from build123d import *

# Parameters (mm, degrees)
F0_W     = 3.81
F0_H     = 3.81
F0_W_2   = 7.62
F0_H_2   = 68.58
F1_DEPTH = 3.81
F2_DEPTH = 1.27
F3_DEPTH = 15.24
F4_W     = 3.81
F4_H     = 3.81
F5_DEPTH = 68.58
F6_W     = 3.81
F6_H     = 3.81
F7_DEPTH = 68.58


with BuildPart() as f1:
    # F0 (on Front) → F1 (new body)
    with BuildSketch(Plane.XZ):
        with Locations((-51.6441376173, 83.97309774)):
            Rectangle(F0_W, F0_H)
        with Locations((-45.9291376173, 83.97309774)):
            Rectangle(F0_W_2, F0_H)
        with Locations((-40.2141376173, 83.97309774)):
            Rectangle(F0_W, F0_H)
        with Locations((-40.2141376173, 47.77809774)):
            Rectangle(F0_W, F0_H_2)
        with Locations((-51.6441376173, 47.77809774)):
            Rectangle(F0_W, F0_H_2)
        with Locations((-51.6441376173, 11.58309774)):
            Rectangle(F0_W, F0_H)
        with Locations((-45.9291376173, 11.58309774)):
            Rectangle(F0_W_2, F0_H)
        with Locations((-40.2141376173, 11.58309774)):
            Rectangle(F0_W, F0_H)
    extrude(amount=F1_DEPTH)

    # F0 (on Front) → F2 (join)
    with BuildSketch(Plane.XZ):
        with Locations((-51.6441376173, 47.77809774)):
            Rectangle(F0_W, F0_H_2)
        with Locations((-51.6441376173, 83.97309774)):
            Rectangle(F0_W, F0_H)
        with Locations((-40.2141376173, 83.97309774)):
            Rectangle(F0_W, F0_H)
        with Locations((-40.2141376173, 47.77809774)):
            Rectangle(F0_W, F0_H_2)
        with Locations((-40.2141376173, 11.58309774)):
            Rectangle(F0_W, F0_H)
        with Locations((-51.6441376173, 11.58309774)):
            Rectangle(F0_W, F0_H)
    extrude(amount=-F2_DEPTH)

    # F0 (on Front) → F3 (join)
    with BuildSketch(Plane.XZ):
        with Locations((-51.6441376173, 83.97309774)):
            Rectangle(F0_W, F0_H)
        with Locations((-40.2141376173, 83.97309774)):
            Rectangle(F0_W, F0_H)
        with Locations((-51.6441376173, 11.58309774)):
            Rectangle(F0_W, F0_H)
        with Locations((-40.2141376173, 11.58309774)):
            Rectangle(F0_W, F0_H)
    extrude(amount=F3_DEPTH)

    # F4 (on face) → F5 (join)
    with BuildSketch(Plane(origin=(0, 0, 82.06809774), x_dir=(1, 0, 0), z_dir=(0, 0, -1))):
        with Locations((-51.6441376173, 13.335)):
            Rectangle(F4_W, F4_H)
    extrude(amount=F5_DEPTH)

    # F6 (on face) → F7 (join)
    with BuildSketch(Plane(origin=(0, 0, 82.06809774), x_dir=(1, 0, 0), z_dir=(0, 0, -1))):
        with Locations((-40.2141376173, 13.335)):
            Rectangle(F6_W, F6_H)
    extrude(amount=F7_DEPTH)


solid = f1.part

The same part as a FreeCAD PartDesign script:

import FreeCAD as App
import Part
import Sketcher
Q = App.Units.Quantity

doc = App.newDocument("Part")
body = doc.addObject("PartDesign::Body", "Body")

sketch1 = body.newObject("Sketcher::SketchObject", "Sketch")
sketch1.AttachmentSupport = (doc.getObject("XZ_Plane"), [""])
sketch1.MapMode = "FlatFace"
sketch1.addGeometry(Part.LineSegment(App.Vector(-54, 10, 0), App.Vector(-38, 10, 0)), False)
sketch1.addGeometry(Part.LineSegment(App.Vector(-38, 10, 0), App.Vector(-38, 86, 0)), False)
sketch1.addGeometry(Part.LineSegment(App.Vector(-38, 86, 0), App.Vector(-54, 86, 0)), False)
sketch1.addGeometry(Part.LineSegment(App.Vector(-54, 86, 0), App.Vector(-54, 10, 0)), False)
sketch1.addGeometry(Part.LineSegment(App.Vector(-42, 13, 0), App.Vector(-50, 13, 0)), False)
sketch1.addGeometry(Part.LineSegment(App.Vector(-50, 13, 0), App.Vector(-50, 82, 0)), False)
sketch1.addGeometry(Part.LineSegment(App.Vector(-50, 82, 0), App.Vector(-42, 82, 0)), False)
sketch1.addGeometry(Part.LineSegment(App.Vector(-42, 82, 0), App.Vector(-42, 13, 0)), False)
sketch1.addConstraint(Sketcher.Constraint("Coincident", 0, 2, 1, 1))
sketch1.addConstraint(Sketcher.Constraint("Coincident", 1, 2, 2, 1))
sketch1.addConstraint(Sketcher.Constraint("Coincident", 2, 2, 3, 1))
sketch1.addConstraint(Sketcher.Constraint("Coincident", 3, 2, 0, 1))
sketch1.addConstraint(Sketcher.Constraint("Coincident", 4, 2, 5, 1))
sketch1.addConstraint(Sketcher.Constraint("Coincident", 5, 2, 6, 1))
sketch1.addConstraint(Sketcher.Constraint("Coincident", 6, 2, 7, 1))
sketch1.addConstraint(Sketcher.Constraint("Coincident", 7, 2, 4, 1))
sketch1.addConstraint(Sketcher.Constraint("Horizontal", 0))
sketch1.addConstraint(Sketcher.Constraint("Vertical", 1))
sketch1.addConstraint(Sketcher.Constraint("Horizontal", 2))
sketch1.addConstraint(Sketcher.Constraint("Vertical", 3))
sketch1.addConstraint(Sketcher.Constraint("Horizontal", 4))
sketch1.addConstraint(Sketcher.Constraint("Vertical", 5))
sketch1.addConstraint(Sketcher.Constraint("Horizontal", 6))
sketch1.addConstraint(Sketcher.Constraint("Vertical", 7))
sketch1.addConstraint(Sketcher.Constraint("DistanceY", 1, 1, 1, 2, Q("3 in")))
sketch1.addConstraint(Sketcher.Constraint("DistanceX", 0, 1, 0, 2, Q("0.6 in")))
sketch1.addConstraint(Sketcher.Constraint("DistanceX", 4, 2, 4, 1, Q("0.3 in")))
sketch1.addConstraint(Sketcher.Constraint("DistanceY", 5, 1, 5, 2, Q("2.7 in")))
sketch1.addConstraint(Sketcher.Constraint("DistanceX", 3, 2, 4, 2, Q("0.15 in")))
sketch1.addConstraint(Sketcher.Constraint("DistanceY", 3, 2, 4, 2, Q("0.15 in")))
sketch1.addConstraint(Sketcher.Constraint("DistanceX", 0, 2, -1, 1, Q("38.309138 mm")))
sketch1.addConstraint(Sketcher.Constraint("DistanceY", -1, 1, 0, 2, Q("9.678098 mm")))
pad1 = body.newObject("PartDesign::Pad", "Pad")
pad1.Profile = sketch1
pad1.Length = Q("0.15 in")

sketch2 = body.newObject("Sketcher::SketchObject", "Sketch001")
sketch2.AttachmentSupport = (doc.getObject("XZ_Plane"), [""])
sketch2.MapMode = "FlatFace"
sketch2.addGeometry(Part.LineSegment(App.Vector(-49.7, 85.9, 0), App.Vector(-53.5, 85.9, 0)), False)
sketch2.addGeometry(Part.LineSegment(App.Vector(-53.5, 85.9, 0), App.Vector(-53.5, 9.7, 0)), False)
sketch2.addGeometry(Part.LineSegment(App.Vector(-53.5, 9.7, 0), App.Vector(-49.7, 9.7, 0)), False)
sketch2.addGeometry(Part.LineSegment(App.Vector(-49.7, 9.7, 0), App.Vector(-49.7, 85.9, 0)), False)
sketch2.addGeometry(Part.LineSegment(App.Vector(-42.1, 85.9, 0), App.Vector(-42.1, 9.7, 0)), False)
sketch2.addGeometry(Part.LineSegment(App.Vector(-42.1, 9.7, 0), App.Vector(-38.3, 9.7, 0)), False)
sketch2.addGeometry(Part.LineSegment(App.Vector(-38.3, 9.7, 0), App.Vector(-38.3, 85.9, 0)), False)
sketch2.addGeometry(Part.LineSegment(App.Vector(-38.3, 85.9, 0), App.Vector(-42.1, 85.9, 0)), False)
sketch2.addConstraint(Sketcher.Constraint("Coincident", 0, 2, 1, 1))
sketch2.addConstraint(Sketcher.Constraint("Coincident", 1, 2, 2, 1))
sketch2.addConstraint(Sketcher.Constraint("Coincident", 2, 2, 3, 1))
sketch2.addConstraint(Sketcher.Constraint("Coincident", 3, 2, 0, 1))
sketch2.addConstraint(Sketcher.Constraint("Coincident", 4, 2, 5, 1))
sketch2.addConstraint(Sketcher.Constraint("Coincident", 5, 2, 6, 1))
sketch2.addConstraint(Sketcher.Constraint("Coincident", 6, 2, 7, 1))
sketch2.addConstraint(Sketcher.Constraint("Coincident", 7, 2, 4, 1))
sketch2.addConstraint(Sketcher.Constraint("Horizontal", 0))
sketch2.addConstraint(Sketcher.Constraint("Vertical", 1))
sketch2.addConstraint(Sketcher.Constraint("Horizontal", 2))
sketch2.addConstraint(Sketcher.Constraint("Vertical", 3))
sketch2.addConstraint(Sketcher.Constraint("Vertical", 4))
sketch2.addConstraint(Sketcher.Constraint("Horizontal", 5))
sketch2.addConstraint(Sketcher.Constraint("Vertical", 6))
sketch2.addConstraint(Sketcher.Constraint("Horizontal", 7))
sketch2.addConstraint(Sketcher.Constraint("Horizontal", 2, 2, 4, 2))
sketch2.addConstraint(Sketcher.Constraint("Horizontal", 3, 2, 6, 2))
sketch2.addConstraint(Sketcher.Constraint("Equal", 2, 5))
sketch2.addConstraint(Sketcher.Constraint("DistanceY", 1, 2, 1, 1, Q("3 in")))
sketch2.addConstraint(Sketcher.Constraint("DistanceX", 0, 2, 0, 1, Q("0.15 in")))
sketch2.addConstraint(Sketcher.Constraint("DistanceX", 2, 2, 4, 2, Q("0.3 in")))
sketch2.addConstraint(Sketcher.Constraint("DistanceX", 0, 2, -1, 1, Q("53.549138 mm")))
sketch2.addConstraint(Sketcher.Constraint("DistanceY", -1, 1, 0, 2, Q("85.878098 mm")))
pad2 = body.newObject("PartDesign::Pad", "Pad001")
pad2.Profile = sketch2
pad2.Length = Q("0.05 in")
pad2.Reversed = True

sketch3 = body.newObject("Sketcher::SketchObject", "Sketch002")
sketch3.AttachmentSupport = (doc.getObject("XZ_Plane"), [""])
sketch3.MapMode = "FlatFace"
sketch3.addGeometry(Part.LineSegment(App.Vector(-53.5, 85.9, 0), App.Vector(-53.5, 82.1, 0)), False)
sketch3.addGeometry(Part.LineSegment(App.Vector(-53.5, 82.1, 0), App.Vector(-49.7, 82.1, 0)), False)
sketch3.addGeometry(Part.LineSegment(App.Vector(-49.7, 82.1, 0), App.Vector(-49.7, 85.9, 0)), False)
sketch3.addGeometry(Part.LineSegment(App.Vector(-49.7, 85.9, 0), App.Vector(-53.5, 85.9, 0)), False)
sketch3.addGeometry(Part.LineSegment(App.Vector(-42.1, 85.9, 0), App.Vector(-42.1, 82.1, 0)), False)
sketch3.addGeometry(Part.LineSegment(App.Vector(-42.1, 82.1, 0), App.Vector(-38.3, 82.1, 0)), False)
sketch3.addGeometry(Part.LineSegment(App.Vector(-38.3, 82.1, 0), App.Vector(-38.3, 85.9, 0)), False)
sketch3.addGeometry(Part.LineSegment(App.Vector(-38.3, 85.9, 0), App.Vector(-42.1, 85.9, 0)), False)
sketch3.addGeometry(Part.LineSegment(App.Vector(-53.5, 13.5, 0), App.Vector(-53.5, 9.7, 0)), False)
sketch3.addGeometry(Part.LineSegment(App.Vector(-53.5, 9.7, 0), App.Vector(-49.7, 9.7, 0)), False)
sketch3.addGeometry(Part.LineSegment(App.Vector(-49.7, 9.7, 0), App.Vector(-49.7, 13.5, 0)), False)
sketch3.addGeometry(Part.LineSegment(App.Vector(-49.7, 13.5, 0), App.Vector(-53.5, 13.5, 0)), False)
sketch3.addGeometry(Part.LineSegment(App.Vector(-42.1, 13.5, 0), App.Vector(-42.1, 9.7, 0)), False)
sketch3.addGeometry(Part.LineSegment(App.Vector(-42.1, 9.7, 0), App.Vector(-38.3, 9.7, 0)), False)
sketch3.addGeometry(Part.LineSegment(App.Vector(-38.3, 9.7, 0), App.Vector(-38.3, 13.5, 0)), False)
sketch3.addGeometry(Part.LineSegment(App.Vector(-38.3, 13.5, 0), App.Vector(-42.1, 13.5, 0)), False)
sketch3.addConstraint(Sketcher.Constraint("Coincident", 0, 2, 1, 1))
sketch3.addConstraint(Sketcher.Constraint("Coincident", 1, 2, 2, 1))
sketch3.addConstraint(Sketcher.Constraint("Coincident", 2, 2, 3, 1))
sketch3.addConstraint(Sketcher.Constraint("Coincident", 3, 2, 0, 1))
sketch3.addConstraint(Sketcher.Constraint("Coincident", 4, 2, 5, 1))
sketch3.addConstraint(Sketcher.Constraint("Coincident", 5, 2, 6, 1))
sketch3.addConstraint(Sketcher.Constraint("Coincident", 6, 2, 7, 1))
sketch3.addConstraint(Sketcher.Constraint("Coincident", 7, 2, 4, 1))
sketch3.addConstraint(Sketcher.Constraint("Coincident", 8, 2, 9, 1))
sketch3.addConstraint(Sketcher.Constraint("Coincident", 9, 2, 10, 1))
sketch3.addConstraint(Sketcher.Constraint("Coincident", 10, 2, 11, 1))
sketch3.addConstraint(Sketcher.Constraint("Coincident", 11, 2, 8, 1))
sketch3.addConstraint(Sketcher.Constraint("Coincident", 12, 2, 13, 1))
sketch3.addConstraint(Sketcher.Constraint("Coincident", 13, 2, 14, 1))
sketch3.addConstraint(Sketcher.Constraint("Coincident", 14, 2, 15, 1))
sketch3.addConstraint(Sketcher.Constraint("Coincident", 15, 2, 12, 1))
sketch3.addConstraint(Sketcher.Constraint("Vertical", 0))
sketch3.addConstraint(Sketcher.Constraint("Horizontal", 1))
sketch3.addConstraint(Sketcher.Constraint("Vertical", 2))
sketch3.addConstraint(Sketcher.Constraint("Horizontal", 3))
sketch3.addConstraint(Sketcher.Constraint("Vertical", 4))
sketch3.addConstraint(Sketcher.Constraint("Horizontal", 5))
sketch3.addConstraint(Sketcher.Constraint("Vertical", 6))
sketch3.addConstraint(Sketcher.Constraint("Horizontal", 7))
sketch3.addConstraint(Sketcher.Constraint("Vertical", 8))
sketch3.addConstraint(Sketcher.Constraint("Horizontal", 9))
sketch3.addConstraint(Sketcher.Constraint("Vertical", 10))
sketch3.addConstraint(Sketcher.Constraint("Horizontal", 11))
sketch3.addConstraint(Sketcher.Constraint("Vertical", 12))
sketch3.addConstraint(Sketcher.Constraint("Horizontal", 13))
sketch3.addConstraint(Sketcher.Constraint("Vertical", 14))
sketch3.addConstraint(Sketcher.Constraint("Horizontal", 15))
sketch3.addConstraint(Sketcher.Constraint("Horizontal", 1, 2, 4, 2))
sketch3.addConstraint(Sketcher.Constraint("Horizontal", 3, 2, 6, 2))
sketch3.addConstraint(Sketcher.Constraint("Horizontal", 9, 2, 12, 2))
sketch3.addConstraint(Sketcher.Constraint("Horizontal", 11, 2, 14, 2))
sketch3.addConstraint(Sketcher.Constraint("Vertical", 3, 2, 8, 2))
sketch3.addConstraint(Sketcher.Constraint("Vertical", 2, 2, 9, 2))
sketch3.addConstraint(Sketcher.Constraint("Vertical", 7, 2, 12, 2))
sketch3.addConstraint(Sketcher.Constraint("Vertical", 6, 2, 13, 2))
sketch3.addConstraint(Sketcher.Constraint("Equal", 3, 5))
sketch3.addConstraint(Sketcher.Constraint("Equal", 15, 0))
sketch3.addConstraint(Sketcher.Constraint("Equal", 6, 8))
sketch3.addConstraint(Sketcher.Constraint("DistanceY", 8, 2, 3, 2, Q("3 in")))
sketch3.addConstraint(Sketcher.Constraint("DistanceX", 1, 1, 1, 2, Q("0.15 in")))
sketch3.addConstraint(Sketcher.Constraint("DistanceX", 1, 2, 4, 2, Q("0.3 in")))
sketch3.addConstraint(Sketcher.Constraint("DistanceX", 0, 2, -1, 1, Q("53.549138 mm")))
sketch3.addConstraint(Sketcher.Constraint("DistanceY", -1, 1, 0, 2, Q("82.068098 mm")))
pad3 = body.newObject("PartDesign::Pad", "Pad002")
pad3.Profile = sketch3
pad3.Length = Q("0.6 in")

sketch4 = body.newObject("Sketcher::SketchObject", "Sketch003")
sketch4.AttachmentSupport = (doc.getObject("XY_Plane"), [""])
sketch4.MapMode = "FlatFace"
sketch4.AttachmentOffset = App.Placement(App.Vector(0, 0, 82.068098), App.Rotation())
sketch4.addGeometry(Part.LineSegment(App.Vector(-53.5, -15.2, 0), App.Vector(-53.5, -11.4, 0)), False)
sketch4.addGeometry(Part.LineSegment(App.Vector(-53.5, -11.4, 0), App.Vector(-49.7, -11.4, 0)), False)
sketch4.addGeometry(Part.LineSegment(App.Vector(-49.7, -11.4, 0), App.Vector(-49.7, -15.2, 0)), False)
sketch4.addGeometry(Part.LineSegment(App.Vector(-49.7, -15.2, 0), App.Vector(-53.5, -15.2, 0)), False)
sketch4.addConstraint(Sketcher.Constraint("Coincident", 0, 2, 1, 1))
sketch4.addConstraint(Sketcher.Constraint("Coincident", 1, 2, 2, 1))
sketch4.addConstraint(Sketcher.Constraint("Coincident", 2, 2, 3, 1))
sketch4.addConstraint(Sketcher.Constraint("Coincident", 3, 2, 0, 1))
sketch4.addConstraint(Sketcher.Constraint("Vertical", 0))
sketch4.addConstraint(Sketcher.Constraint("Horizontal", 1))
sketch4.addConstraint(Sketcher.Constraint("Vertical", 2))
sketch4.addConstraint(Sketcher.Constraint("Horizontal", 3))
sketch4.addConstraint(Sketcher.Constraint("Equal", 3, 0))
sketch4.addConstraint(Sketcher.Constraint("DistanceX", 1, 1, 1, 2, Q("0.15 in")))
sketch4.addConstraint(Sketcher.Constraint("DistanceY", 2, 2, -1, 1, Q("0.6 in")))
sketch4.addConstraint(Sketcher.Constraint("DistanceX", 0, 2, -1, 1, Q("53.549138 mm")))
pad4 = body.newObject("PartDesign::Pad", "Pad003")
pad4.Profile = sketch4
pad4.Length = Q("2.7 in")
pad4.Reversed = True

sketch5 = body.newObject("Sketcher::SketchObject", "Sketch004")
sketch5.AttachmentSupport = (doc.getObject("XY_Plane"), [""])
sketch5.MapMode = "FlatFace"
sketch5.AttachmentOffset = App.Placement(App.Vector(0, 0, 82.068098), App.Rotation())
sketch5.addGeometry(Part.LineSegment(App.Vector(-42.1, -15.2, 0), App.Vector(-42.1, -11.4, 0)), False)
sketch5.addGeometry(Part.LineSegment(App.Vector(-42.1, -11.4, 0), App.Vector(-38.3, -11.4, 0)), False)
sketch5.addGeometry(Part.LineSegment(App.Vector(-38.3, -11.4, 0), App.Vector(-38.3, -15.2, 0)), False)
sketch5.addGeometry(Part.LineSegment(App.Vector(-38.3, -15.2, 0), App.Vector(-42.1, -15.2, 0)), False)
sketch5.addConstraint(Sketcher.Constraint("Coincident", 0, 2, 1, 1))
sketch5.addConstraint(Sketcher.Constraint("Coincident", 1, 2, 2, 1))
sketch5.addConstraint(Sketcher.Constraint("Coincident", 2, 2, 3, 1))
sketch5.addConstraint(Sketcher.Constraint("Coincident", 3, 2, 0, 1))
sketch5.addConstraint(Sketcher.Constraint("Vertical", 0))
sketch5.addConstraint(Sketcher.Constraint("Horizontal", 1))
sketch5.addConstraint(Sketcher.Constraint("Vertical", 2))
sketch5.addConstraint(Sketcher.Constraint("Horizontal", 3))
sketch5.addConstraint(Sketcher.Constraint("Equal", 3, 0))
sketch5.addConstraint(Sketcher.Constraint("DistanceX", 1, 1, 1, 2, Q("0.15 in")))
sketch5.addConstraint(Sketcher.Constraint("DistanceY", 2, 2, -1, 1, Q("0.6 in")))
sketch5.addConstraint(Sketcher.Constraint("DistanceX", 0, 2, -1, 1, Q("42.119138 mm")))
pad5 = body.newObject("PartDesign::Pad", "Pad004")
pad5.Profile = sketch5
pad5.Length = Q("2.7 in")
pad5.Reversed = True

doc.recompute()
